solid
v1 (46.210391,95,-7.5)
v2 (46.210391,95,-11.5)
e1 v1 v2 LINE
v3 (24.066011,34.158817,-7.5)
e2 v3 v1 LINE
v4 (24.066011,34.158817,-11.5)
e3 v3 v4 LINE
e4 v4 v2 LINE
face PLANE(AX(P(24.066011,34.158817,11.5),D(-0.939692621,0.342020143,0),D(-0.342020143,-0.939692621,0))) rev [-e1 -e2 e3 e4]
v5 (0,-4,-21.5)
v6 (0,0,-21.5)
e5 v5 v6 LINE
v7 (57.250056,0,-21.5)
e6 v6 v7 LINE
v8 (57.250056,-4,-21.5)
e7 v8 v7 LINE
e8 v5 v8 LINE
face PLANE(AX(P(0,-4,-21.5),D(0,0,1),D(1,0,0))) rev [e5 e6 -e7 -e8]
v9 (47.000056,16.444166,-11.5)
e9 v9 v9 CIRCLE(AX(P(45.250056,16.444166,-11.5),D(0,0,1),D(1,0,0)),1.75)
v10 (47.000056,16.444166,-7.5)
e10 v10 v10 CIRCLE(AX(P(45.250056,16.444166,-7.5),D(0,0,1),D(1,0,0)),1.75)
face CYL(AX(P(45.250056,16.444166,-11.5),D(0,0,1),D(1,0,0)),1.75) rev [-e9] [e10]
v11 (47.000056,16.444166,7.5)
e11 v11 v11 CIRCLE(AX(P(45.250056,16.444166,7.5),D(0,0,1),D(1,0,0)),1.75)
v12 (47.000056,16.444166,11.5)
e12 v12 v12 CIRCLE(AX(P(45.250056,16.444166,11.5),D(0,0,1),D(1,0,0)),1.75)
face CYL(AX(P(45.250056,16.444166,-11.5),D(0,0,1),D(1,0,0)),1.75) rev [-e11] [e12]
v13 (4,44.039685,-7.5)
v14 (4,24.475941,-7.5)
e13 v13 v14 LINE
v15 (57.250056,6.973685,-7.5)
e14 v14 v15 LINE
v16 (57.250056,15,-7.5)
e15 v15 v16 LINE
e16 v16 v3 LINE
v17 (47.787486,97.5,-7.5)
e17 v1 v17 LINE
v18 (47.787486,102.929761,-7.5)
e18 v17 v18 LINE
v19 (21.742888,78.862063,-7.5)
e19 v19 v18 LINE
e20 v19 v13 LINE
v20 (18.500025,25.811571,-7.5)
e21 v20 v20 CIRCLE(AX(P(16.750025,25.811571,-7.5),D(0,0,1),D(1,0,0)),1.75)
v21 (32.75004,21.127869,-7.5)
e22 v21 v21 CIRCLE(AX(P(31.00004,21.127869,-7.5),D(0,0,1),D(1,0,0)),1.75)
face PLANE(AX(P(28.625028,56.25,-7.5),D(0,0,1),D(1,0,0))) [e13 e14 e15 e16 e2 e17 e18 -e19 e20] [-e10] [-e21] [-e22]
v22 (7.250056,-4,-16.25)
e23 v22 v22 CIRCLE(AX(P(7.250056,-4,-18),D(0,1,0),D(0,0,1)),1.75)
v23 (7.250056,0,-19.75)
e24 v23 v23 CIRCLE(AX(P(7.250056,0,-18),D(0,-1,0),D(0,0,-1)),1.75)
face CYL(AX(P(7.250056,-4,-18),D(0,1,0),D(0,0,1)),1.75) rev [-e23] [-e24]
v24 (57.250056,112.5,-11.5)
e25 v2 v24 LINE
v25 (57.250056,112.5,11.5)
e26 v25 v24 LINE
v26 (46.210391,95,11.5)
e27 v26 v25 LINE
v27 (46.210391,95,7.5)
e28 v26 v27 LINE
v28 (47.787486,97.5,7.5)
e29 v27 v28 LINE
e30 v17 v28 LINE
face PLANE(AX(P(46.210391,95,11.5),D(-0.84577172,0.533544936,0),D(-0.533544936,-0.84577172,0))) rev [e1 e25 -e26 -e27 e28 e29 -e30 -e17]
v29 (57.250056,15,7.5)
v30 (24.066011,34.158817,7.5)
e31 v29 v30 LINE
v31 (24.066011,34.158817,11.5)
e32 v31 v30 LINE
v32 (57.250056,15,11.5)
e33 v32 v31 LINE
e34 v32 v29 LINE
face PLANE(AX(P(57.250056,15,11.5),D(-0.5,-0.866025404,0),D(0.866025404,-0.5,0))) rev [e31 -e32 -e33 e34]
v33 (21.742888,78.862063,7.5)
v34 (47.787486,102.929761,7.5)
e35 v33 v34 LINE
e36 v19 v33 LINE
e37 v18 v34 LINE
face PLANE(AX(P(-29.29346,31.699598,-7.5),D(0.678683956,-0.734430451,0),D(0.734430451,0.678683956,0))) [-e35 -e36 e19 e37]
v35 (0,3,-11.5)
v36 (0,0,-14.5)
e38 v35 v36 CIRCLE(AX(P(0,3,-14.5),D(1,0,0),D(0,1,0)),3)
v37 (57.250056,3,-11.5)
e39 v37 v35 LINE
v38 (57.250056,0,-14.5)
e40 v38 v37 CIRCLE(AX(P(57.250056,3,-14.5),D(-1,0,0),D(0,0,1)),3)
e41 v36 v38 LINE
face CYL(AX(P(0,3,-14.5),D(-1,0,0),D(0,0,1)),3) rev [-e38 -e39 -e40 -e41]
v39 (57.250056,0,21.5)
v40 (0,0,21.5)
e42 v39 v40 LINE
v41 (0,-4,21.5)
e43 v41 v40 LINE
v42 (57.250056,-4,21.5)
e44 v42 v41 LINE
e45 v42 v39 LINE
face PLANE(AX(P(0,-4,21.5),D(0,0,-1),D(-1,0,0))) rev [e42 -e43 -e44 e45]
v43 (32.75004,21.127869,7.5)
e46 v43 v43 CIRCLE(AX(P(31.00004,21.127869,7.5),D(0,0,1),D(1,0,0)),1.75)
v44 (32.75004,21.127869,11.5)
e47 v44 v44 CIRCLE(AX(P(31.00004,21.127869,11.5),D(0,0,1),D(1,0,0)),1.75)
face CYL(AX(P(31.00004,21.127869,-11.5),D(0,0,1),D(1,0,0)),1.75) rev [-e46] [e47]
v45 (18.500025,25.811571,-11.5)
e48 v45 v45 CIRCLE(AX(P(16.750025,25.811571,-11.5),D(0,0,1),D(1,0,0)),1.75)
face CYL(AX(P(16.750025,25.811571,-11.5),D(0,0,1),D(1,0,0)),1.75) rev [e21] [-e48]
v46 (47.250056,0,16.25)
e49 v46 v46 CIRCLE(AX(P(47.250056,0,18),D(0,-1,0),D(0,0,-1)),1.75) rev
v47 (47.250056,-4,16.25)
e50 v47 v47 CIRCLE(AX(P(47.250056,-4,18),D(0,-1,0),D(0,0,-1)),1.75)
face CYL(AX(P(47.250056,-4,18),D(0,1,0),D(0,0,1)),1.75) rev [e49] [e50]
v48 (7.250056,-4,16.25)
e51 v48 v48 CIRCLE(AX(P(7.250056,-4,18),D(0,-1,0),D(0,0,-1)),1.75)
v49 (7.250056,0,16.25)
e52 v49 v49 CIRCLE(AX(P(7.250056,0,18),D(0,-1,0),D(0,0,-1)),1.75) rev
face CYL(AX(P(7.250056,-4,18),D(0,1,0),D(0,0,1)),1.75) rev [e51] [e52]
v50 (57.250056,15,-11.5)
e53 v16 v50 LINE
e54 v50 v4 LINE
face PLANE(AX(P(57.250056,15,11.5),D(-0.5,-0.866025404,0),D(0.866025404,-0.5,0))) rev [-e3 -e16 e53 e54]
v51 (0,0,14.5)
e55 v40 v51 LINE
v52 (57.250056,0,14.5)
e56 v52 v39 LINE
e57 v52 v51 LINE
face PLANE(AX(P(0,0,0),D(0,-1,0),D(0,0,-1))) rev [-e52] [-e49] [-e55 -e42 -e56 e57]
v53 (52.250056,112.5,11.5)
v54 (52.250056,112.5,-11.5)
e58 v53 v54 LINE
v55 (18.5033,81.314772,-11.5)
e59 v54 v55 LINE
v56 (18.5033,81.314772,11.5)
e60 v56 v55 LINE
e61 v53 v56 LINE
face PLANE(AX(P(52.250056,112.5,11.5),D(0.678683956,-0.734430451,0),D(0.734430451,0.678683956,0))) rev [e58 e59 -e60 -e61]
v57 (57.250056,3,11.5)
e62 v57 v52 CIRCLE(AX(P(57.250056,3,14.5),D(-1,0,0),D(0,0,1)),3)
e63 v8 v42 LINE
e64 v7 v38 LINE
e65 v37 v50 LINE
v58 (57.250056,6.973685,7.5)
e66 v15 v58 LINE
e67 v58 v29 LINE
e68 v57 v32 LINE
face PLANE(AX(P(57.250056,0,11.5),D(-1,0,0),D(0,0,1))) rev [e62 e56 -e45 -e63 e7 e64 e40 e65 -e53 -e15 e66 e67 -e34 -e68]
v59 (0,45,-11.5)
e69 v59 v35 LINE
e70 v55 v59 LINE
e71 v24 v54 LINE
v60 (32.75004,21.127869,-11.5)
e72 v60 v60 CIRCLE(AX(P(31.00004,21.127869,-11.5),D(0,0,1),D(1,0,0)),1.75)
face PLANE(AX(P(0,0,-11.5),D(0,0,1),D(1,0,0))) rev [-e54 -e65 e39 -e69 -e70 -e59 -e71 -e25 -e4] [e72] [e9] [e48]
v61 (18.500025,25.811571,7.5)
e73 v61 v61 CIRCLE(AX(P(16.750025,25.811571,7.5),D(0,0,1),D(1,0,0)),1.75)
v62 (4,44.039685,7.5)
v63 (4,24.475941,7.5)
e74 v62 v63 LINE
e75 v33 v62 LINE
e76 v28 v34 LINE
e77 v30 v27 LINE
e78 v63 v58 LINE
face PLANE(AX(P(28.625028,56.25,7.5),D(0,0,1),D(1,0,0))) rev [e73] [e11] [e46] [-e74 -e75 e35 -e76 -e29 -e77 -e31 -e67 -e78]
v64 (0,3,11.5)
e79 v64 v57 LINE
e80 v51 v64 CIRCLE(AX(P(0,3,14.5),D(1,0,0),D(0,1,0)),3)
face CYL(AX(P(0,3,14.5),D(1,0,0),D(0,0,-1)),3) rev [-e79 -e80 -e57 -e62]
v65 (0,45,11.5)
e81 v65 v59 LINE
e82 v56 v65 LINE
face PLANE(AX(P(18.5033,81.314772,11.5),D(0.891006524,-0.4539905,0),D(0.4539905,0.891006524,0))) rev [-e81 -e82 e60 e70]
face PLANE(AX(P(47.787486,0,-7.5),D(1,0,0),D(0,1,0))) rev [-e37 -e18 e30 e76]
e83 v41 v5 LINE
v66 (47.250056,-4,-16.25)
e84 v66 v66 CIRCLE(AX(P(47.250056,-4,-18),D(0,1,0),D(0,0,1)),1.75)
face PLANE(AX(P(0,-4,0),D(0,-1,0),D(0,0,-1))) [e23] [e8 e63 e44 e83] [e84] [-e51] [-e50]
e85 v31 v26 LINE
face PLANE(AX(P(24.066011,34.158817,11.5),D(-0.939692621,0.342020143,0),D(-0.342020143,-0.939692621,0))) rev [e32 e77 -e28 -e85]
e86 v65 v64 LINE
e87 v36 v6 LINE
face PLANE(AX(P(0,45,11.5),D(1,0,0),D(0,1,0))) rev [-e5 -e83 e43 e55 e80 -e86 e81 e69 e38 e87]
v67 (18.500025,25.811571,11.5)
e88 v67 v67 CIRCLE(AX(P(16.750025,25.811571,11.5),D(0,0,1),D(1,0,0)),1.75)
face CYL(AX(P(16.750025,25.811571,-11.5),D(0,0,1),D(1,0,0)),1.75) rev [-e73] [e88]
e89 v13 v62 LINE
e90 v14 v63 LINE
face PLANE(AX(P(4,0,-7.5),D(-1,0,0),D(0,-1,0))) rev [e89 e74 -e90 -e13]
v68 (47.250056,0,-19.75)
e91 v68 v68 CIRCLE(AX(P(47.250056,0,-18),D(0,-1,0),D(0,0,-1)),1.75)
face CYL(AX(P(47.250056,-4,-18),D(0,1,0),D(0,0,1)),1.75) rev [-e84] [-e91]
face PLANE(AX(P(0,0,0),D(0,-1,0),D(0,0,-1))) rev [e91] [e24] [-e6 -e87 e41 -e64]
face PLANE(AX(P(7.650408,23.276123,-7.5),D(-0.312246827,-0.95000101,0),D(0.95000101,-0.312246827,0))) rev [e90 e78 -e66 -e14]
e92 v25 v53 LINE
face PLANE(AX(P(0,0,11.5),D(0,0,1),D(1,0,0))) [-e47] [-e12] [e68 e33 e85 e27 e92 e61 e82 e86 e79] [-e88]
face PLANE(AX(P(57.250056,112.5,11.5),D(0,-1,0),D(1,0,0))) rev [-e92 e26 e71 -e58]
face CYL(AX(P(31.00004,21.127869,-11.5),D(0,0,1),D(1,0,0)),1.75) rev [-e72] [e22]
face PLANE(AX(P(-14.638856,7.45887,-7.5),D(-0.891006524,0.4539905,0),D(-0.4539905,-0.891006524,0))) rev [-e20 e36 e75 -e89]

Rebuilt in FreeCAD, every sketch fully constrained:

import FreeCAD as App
import Part
import Sketcher

V = App.Vector
Q = App.Units.Quantity


def edges_at(feature, points):
    """Names of the edges that pass closest to the given points."""
    edges = feature.Shape.Edges
    near = lambda p: min(range(len(edges)), key=lambda i: edges[i].distToShape(Part.Vertex(*p))[0])
    return sorted({f"Edge{near(p) + 1}" for p in points})

doc = App.newDocument("Part")
body = doc.addObject("PartDesign::Body", "Body")

sketch1 = body.newObject("Sketcher::SketchObject", "Sketch")
sketch1.AttachmentSupport = (doc.getObject("XY_Plane"), [""])
sketch1.MapMode = "FlatFace"
sketch1.addGeometry(Part.LineSegment(V(0, 0, 0), V(57.250056, 0, 0)), False)
sketch1.addGeometry(Part.LineSegment(V(57.250056, 0, 0), V(57.250056, 15, 0)), False)
sketch1.addGeometry(Part.LineSegment(V(57.250056, 15, 0), V(24.066011, 34.158817, 0)), False)
sketch1.addGeometry(Part.LineSegment(V(24.066011, 34.158817, 0), V(46.210391, 95, 0)), False)
sketch1.addGeometry(Part.LineSegment(V(46.210391, 95, 0), V(57.250056, 112.5, 0)), False)
sketch1.addGeometry(Part.LineSegment(V(57.250056, 112.5, 0), V(52.250056, 112.5, 0)), False)
sketch1.addGeometry(Part.LineSegment(V(52.250056, 112.5, 0), V(18.5033, 81.314772, 0)), False)
sketch1.addGeometry(Part.LineSegment(V(18.5033, 81.314772, 0), V(0, 45, 0)), False)
sketch1.addGeometry(Part.LineSegment(V(0, 45, 0), V(0, 0, 0)), False)
sketch1.addConstraint(Sketcher.Constraint("Coincident", 0, 2, 1, 1))
sketch1.addConstraint(Sketcher.Constraint("Coincident", 1, 2, 2, 1))
sketch1.addConstraint(Sketcher.Constraint("Coincident", 2, 2, 3, 1))
sketch1.addConstraint(Sketcher.Constraint("Coincident", 3, 2, 4, 1))
sketch1.addConstraint(Sketcher.Constraint("Coincident", 4, 2, 5, 1))
sketch1.addConstraint(Sketcher.Constraint("Coincident", 5, 2, 6, 1))
sketch1.addConstraint(Sketcher.Constraint("Coincident", 6, 2, 7, 1))
sketch1.addConstraint(Sketcher.Constraint("Coincident", 7, 2, 8, 1))
sketch1.addConstraint(Sketcher.Constraint("Coincident", 8, 2, 0, 1))
sketch1.addConstraint(Sketcher.Constraint("Horizontal", 0))
sketch1.addConstraint(Sketcher.Constraint("Vertical", 1))
sketch1.addConstraint(Sketcher.Constraint("Horizontal", 5))
sketch1.addConstraint(Sketcher.Constraint("Vertical", 8))
sketch1.addConstraint(Sketcher.Constraint("Coincident", 8, 2, -1, 1))
sketch1.addConstraint(Sketcher.Constraint("Vertical", 1, 2, 4, 2))
sketch1.addConstraint(Sketcher.Constraint("DistanceX", 5, 2, 5, 1, 5.0))
sketch1.addConstraint(Sketcher.Constraint("DistanceY", 1, 1, 1, 2, 15.0))
sketch1.addConstraint(Sketcher.Constraint("DistanceY", 8, 2, 8, 1, 45.0))
sketch1.addConstraint(Sketcher.Constraint("Angle", 2, Q("150 deg")))
sketch1.addConstraint(Sketcher.Constraint("Angle", 3, Q("70 deg")))
sketch1.addConstraint(Sketcher.Constraint("Angle", 7, Q("-117 deg")))
sketch1.addConstraint(Sketcher.Constraint("DistanceY", -1, 1, 3, 2, 95.0))
sketch1.addConstraint(Sketcher.Constraint("DistanceY", -1, 1, 4, 2, 112.5))
sketch1.addConstraint(Sketcher.Constraint("DistanceX", -1, 1, 6, 2, 18.5033))
sketch1.addConstraint(Sketcher.Constraint("Distance", 6, 45.949559))
sketch1.addConstraint(Sketcher.Constraint("DistanceX", -1, 1, 2, 2, 24.066011))
pad1 = body.newObject("PartDesign::Pad", "Pad")
pad1.Profile = sketch1
pad1.Length = 23
pad1.Midplane = True

sketch2 = body.newObject("Sketcher::SketchObject", "Sketch001")
sketch2.AttachmentSupport = (doc.getObject("XY_Plane"), [""])
sketch2.MapMode = "FlatFace"
sketch2.addGeometry(Part.LineSegment(V(-13.831, 126.331, 0), V(-13.831, -13.831, 0)), False)
sketch2.addGeometry(Part.LineSegment(V(-13.831, -13.831, 0), V(71.081, -13.831, 0)), False)
sketch2.addGeometry(Part.LineSegment(V(71.081, -13.831, 0), V(71.081, 126.331, 0)), False)
sketch2.addGeometry(Part.LineSegment(V(71.081, 126.331, 0), V(-13.831, 126.331, 0)), False)
sketch2.addGeometry(Part.LineSegment(V(47.787486, 102.929761, 0), V(21.742888, 78.862063, 0)), False)
sketch2.addGeometry(Part.LineSegment(V(21.742888, 78.862063, 0), V(4, 44.039685, 0)), False)
sketch2.addGeometry(Part.LineSegment(V(4, 44.039685, 0), V(4, 24.475941, 0)), False)
sketch2.addGeometry(Part.LineSegment(V(4, 24.475941, 0), V(57.250056, 6.973685, 0)), False)
sketch2.addGeometry(Part.LineSegment(V(57.250056, 6.973685, 0), V(57.250056, 0, 0)), False)
sketch2.addGeometry(Part.LineSegment(V(57.250056, 0, 0), V(0, 0, 0)), False)
sketch2.addGeometry(Part.LineSegment(V(0, 0, 0), V(0, 45, 0)), False)
sketch2.addGeometry(Part.LineSegment(V(0, 45, 0), V(18.5033, 81.314772, 0)), False)
sketch2.addGeometry(Part.LineSegment(V(18.5033, 81.314772, 0), V(52.250056, 112.5, 0)), False)
sketch2.addGeometry(Part.LineSegment(V(52.250056, 112.5, 0), V(57.250056, 112.5, 0)), False)
sketch2.addGeometry(Part.LineSegment(V(57.250056, 112.5, 0), V(47.787486, 97.5, 0)), False)
sketch2.addGeometry(Part.LineSegment(V(47.787486, 97.5, 0), V(47.787486, 102.929761, 0)), False)
sketch2.addConstraint(Sketcher.Constraint("Coincident", 0, 2, 1, 1))
sketch2.addConstraint(Sketcher.Constraint("Coincident", 1, 2, 2, 1))
sketch2.addConstraint(Sketcher.Constraint("Coincident", 2, 2, 3, 1))
sketch2.addConstraint(Sketcher.Constraint("Coincident", 3, 2, 0, 1))
sketch2.addConstraint(Sketcher.Constraint("Coincident", 4, 2, 5, 1))
sketch2.addConstraint(Sketcher.Constraint("Coincident", 5, 2, 6, 1))
sketch2.addConstraint(Sketcher.Constraint("Coincident", 6, 2, 7, 1))
sketch2.addConstraint(Sketcher.Constraint("Coincident", 7, 2, 8, 1))
sketch2.addConstraint(Sketcher.Constraint("Coincident", 8, 2, 9, 1))
sketch2.addConstraint(Sketcher.Constraint("Coincident", 9, 2, 10, 1))
sketch2.addConstraint(Sketcher.Constraint("Coincident", 10, 2, 11, 1))
sketch2.addConstraint(Sketcher.Constraint("Coincident", 11, 2, 12, 1))
sketch2.addConstraint(Sketcher.Constraint("Coincident", 12, 2, 13, 1))
sketch2.addConstraint(Sketcher.Constraint("Coincident", 13, 2, 14, 1))
sketch2.addConstraint(Sketcher.Constraint("Coincident", 14, 2, 15, 1))
sketch2.addConstraint(Sketcher.Constraint("Coincident", 15, 2, 4, 1))
sketch2.addConstraint(Sketcher.Constraint("Vertical", 0))
sketch2.addConstraint(Sketcher.Constraint("Horizontal", 1))
sketch2.addConstraint(Sketcher.Constraint("Vertical", 2))
sketch2.addConstraint(Sketcher.Constraint("Horizontal", 3))
sketch2.addConstraint(Sketcher.Constraint("Vertical", 6))
sketch2.addConstraint(Sketcher.Constraint("Vertical", 8))
sketch2.addConstraint(Sketcher.Constraint("Horizontal", 9))
sketch2.addConstraint(Sketcher.Constraint("Vertical", 10))
sketch2.addConstraint(Sketcher.Constraint("Horizontal", 13))
sketch2.addConstraint(Sketcher.Constraint("Vertical", 15))
sketch2.addConstraint(Sketcher.Constraint("Coincident", 9, 2, -1, 1))
sketch2.addConstraint(Sketcher.Constraint("Parallel", 5, 11))
sketch2.addConstraint(Sketcher.Constraint("Parallel", 4, 12))
sketch2.addConstraint(Sketcher.Constraint("Vertical", 8, 2, 13, 2))
sketch2.addConstraint(Sketcher.Constraint("DistanceX", 13, 1, 13, 2, 5.0))
sketch2.addConstraint(Sketcher.Constraint("DistanceY", 10, 1, 10, 2, 45.0))
sketch2.addConstraint(Sketcher.Constraint("Angle", 5, Q("-117 deg")))
sketch2.addConstraint(Sketcher.Constraint("DistanceX", -1, 1, 5, 2, 4.0))
sketch2.addConstraint(Sketcher.Constraint("DistanceY", 14, 2, 12, 2, 15.0))
sketch2.addConstraint(Sketcher.Constraint("DistanceY", -1, 1, 12, 2, 112.5))
sketch2.addConstraint(Sketcher.Constraint("DistanceX", 1, 1, 1, 2, 84.912))
sketch2.addConstraint(Sketcher.Constraint("DistanceY", 0, 2, 0, 1, 140.162))
sketch2.addConstraint(Sketcher.Constraint("DistanceX", 0, 2, -1, 1, 13.831))
sketch2.addConstraint(Sketcher.Constraint("DistanceY", 0, 2, -1, 1, 13.831))
sketch2.addConstraint(Sketcher.Constraint("DistanceY", 7, 2, 5, 2, 37.066))
sketch2.addConstraint(Sketcher.Constraint("DistanceY", 15, 1, 15, 2, 5.429761))
sketch2.addConstraint(Sketcher.Constraint("DistanceX", -1, 1, 11, 2, 18.5033))
sketch2.addConstraint(Sketcher.Constraint("DistanceY", 4, 2, 15, 2, 24.067699))
sketch2.addConstraint(Sketcher.Constraint("Distance", 5, 39.082068))
sketch2.addConstraint(Sketcher.Constraint("Distance", 7, 56.05263))
sketch2.addConstraint(Sketcher.Constraint("Distance", 12, 45.949559))
pocket1 = body.newObject("PartDesign::Pocket", "Pocket")
pocket1.Profile = sketch2
pocket1.Length = 15
pocket1.Midplane = True

sketch3 = body.newObject("Sketcher::SketchObject", "Sketch002")
sketch3.AttachmentSupport = (doc.getObject("XY_Plane"), [""])
sketch3.MapMode = "FlatFace"
sketch3.AttachmentOffset = App.Placement(V(0, 0, 11.5), App.Rotation())
sketch3.addGeometry(Part.Circle(V(45.250056, 16.444166, 0), V(0, 0, 1), 1.75), False)
sketch3.addGeometry(Part.Circle(V(31.00004, 21.127869, 0), V(0, 0, 1), 1.75), False)
sketch3.addGeometry(Part.Circle(V(16.750025, 25.811571, 0), V(0, 0, 1), 1.75), False)
sketch3.addConstraint(Sketcher.Constraint("Equal", 0, 1))
sketch3.addConstraint(Sketcher.Constraint("Equal", 1, 2))
sketch3.addConstraint(Sketcher.Constraint("Diameter", 0, 3.5))
sketch3.addConstraint(Sketcher.Constraint("DistanceX", -1, 1, 1, 3, 31.00004))
sketch3.addConstraint(Sketcher.Constraint("DistanceY", -1, 1, 1, 3, 21.127869))
sketch3.addConstraint(Sketcher.Constraint("DistanceY", -1, 1, 2, 3, 25.811571))
sketch3.addConstraint(Sketcher.Constraint("DistanceX", 2, 3, 0, 3, 28.50003))
sketch3.addConstraint(Sketcher.Constraint("DistanceX", -1, 1, 0, 3, 45.250056))
sketch3.addConstraint(Sketcher.Constraint("DistanceY", -1, 1, 0, 3, 16.444166))
pocket2 = body.newObject("PartDesign::Pocket", "Pocket001")
pocket2.Profile = sketch3
pocket2.Type = "ThroughAll"
pocket2.Midplane = True

sketch4 = body.newObject("Sketcher::SketchObject", "Sketch003")
sketch4.AttachmentSupport = (doc.getObject("XZ_Plane"), [""])
sketch4.MapMode = "FlatFace"
sketch4.addGeometry(Part.LineSegment(V(0, 21.5, 0), V(0, -21.5, 0)), False)
sketch4.addGeometry(Part.LineSegment(V(0, -21.5, 0), V(57.250056, -21.5, 0)), False)
sketch4.addGeometry(Part.LineSegment(V(57.250056, -21.5, 0), V(57.250056, 21.5, 0)), False)
sketch4.addGeometry(Part.LineSegment(V(57.250056, 21.5, 0), V(0, 21.5, 0)), False)
sketch4.addConstraint(Sketcher.Constraint("Coincident", 0, 2, 1, 1))
sketch4.addConstraint(Sketcher.Constraint("Coincident", 1, 2, 2, 1))
sketch4.addConstraint(Sketcher.Constraint("Coincident", 2, 2, 3, 1))
sketch4.addConstraint(Sketcher.Constraint("Coincident", 3, 2, 0, 1))
sketch4.addConstraint(Sketcher.Constraint("Vertical", 0))
sketch4.addConstraint(Sketcher.Constraint("Horizontal", 1))
sketch4.addConstraint(Sketcher.Constraint("Vertical", 2))
sketch4.addConstraint(Sketcher.Constraint("Horizontal", 3))
sketch4.addConstraint(Sketcher.Constraint("Symmetric", 0, 2, 3, 2, -1, 1))
sketch4.addConstraint(Sketcher.Constraint("DistanceY", 0, 2, 0, 1, 43.0))
sketch4.addConstraint(Sketcher.Constraint("DistanceX", 1, 1, 1, 2, 57.250056))
pad2 = body.newObject("PartDesign::Pad", "Pad001")
pad2.Profile = sketch4
pad2.Length = 4

sketch5 = body.newObject("Sketcher::SketchObject", "Sketch004")
sketch5.AttachmentSupport = (doc.getObject("XZ_Plane"), [""])
sketch5.MapMode = "FlatFace"
sketch5.addGeometry(Part.Circle(V(7.250056, -18, 0), V(0, 0, 1), 1.75), False)
sketch5.addGeometry(Part.Circle(V(47.250056, -18, 0), V(0, 0, 1), 1.75), False)
sketch5.addConstraint(Sketcher.Constraint("Equal", 0, 1))
sketch5.addConstraint(Sketcher.Constraint("Horizontal", 0, 3, 1, 3))
sketch5.addConstraint(Sketcher.Constraint("Diameter", 0, 3.5))
sketch5.addConstraint(Sketcher.Constraint("DistanceY", 0, 3, -1, 1, 18.0))
sketch5.addConstraint(Sketcher.Constraint("DistanceX", 0, 3, 1, 3, 40.0))
sketch5.addConstraint(Sketcher.Constraint("DistanceX", -1, 1, 0, 3, 7.250056))
pocket3 = body.newObject("PartDesign::Pocket", "Pocket002")
pocket3.Profile = sketch5
pocket3.Length = 258.094271
pocket3.Midplane = True
doc.recompute()

mirrored = body.newObject("PartDesign::Mirrored", "Mirrored")
mirrored.Originals = [pocket3]
mirrored.MirrorPlane = (doc.getObject("XY_Plane"), [""])
body.Tip = mirrored
doc.recompute()

fillet = body.newObject("PartDesign::Fillet", "Fillet")
fillet.Base = (mirrored, edges_at(mirrored, [(28.625, 0, -11.5), (28.625, 0, 11.5)]))
fillet.Radius = 3

doc.recompute()
